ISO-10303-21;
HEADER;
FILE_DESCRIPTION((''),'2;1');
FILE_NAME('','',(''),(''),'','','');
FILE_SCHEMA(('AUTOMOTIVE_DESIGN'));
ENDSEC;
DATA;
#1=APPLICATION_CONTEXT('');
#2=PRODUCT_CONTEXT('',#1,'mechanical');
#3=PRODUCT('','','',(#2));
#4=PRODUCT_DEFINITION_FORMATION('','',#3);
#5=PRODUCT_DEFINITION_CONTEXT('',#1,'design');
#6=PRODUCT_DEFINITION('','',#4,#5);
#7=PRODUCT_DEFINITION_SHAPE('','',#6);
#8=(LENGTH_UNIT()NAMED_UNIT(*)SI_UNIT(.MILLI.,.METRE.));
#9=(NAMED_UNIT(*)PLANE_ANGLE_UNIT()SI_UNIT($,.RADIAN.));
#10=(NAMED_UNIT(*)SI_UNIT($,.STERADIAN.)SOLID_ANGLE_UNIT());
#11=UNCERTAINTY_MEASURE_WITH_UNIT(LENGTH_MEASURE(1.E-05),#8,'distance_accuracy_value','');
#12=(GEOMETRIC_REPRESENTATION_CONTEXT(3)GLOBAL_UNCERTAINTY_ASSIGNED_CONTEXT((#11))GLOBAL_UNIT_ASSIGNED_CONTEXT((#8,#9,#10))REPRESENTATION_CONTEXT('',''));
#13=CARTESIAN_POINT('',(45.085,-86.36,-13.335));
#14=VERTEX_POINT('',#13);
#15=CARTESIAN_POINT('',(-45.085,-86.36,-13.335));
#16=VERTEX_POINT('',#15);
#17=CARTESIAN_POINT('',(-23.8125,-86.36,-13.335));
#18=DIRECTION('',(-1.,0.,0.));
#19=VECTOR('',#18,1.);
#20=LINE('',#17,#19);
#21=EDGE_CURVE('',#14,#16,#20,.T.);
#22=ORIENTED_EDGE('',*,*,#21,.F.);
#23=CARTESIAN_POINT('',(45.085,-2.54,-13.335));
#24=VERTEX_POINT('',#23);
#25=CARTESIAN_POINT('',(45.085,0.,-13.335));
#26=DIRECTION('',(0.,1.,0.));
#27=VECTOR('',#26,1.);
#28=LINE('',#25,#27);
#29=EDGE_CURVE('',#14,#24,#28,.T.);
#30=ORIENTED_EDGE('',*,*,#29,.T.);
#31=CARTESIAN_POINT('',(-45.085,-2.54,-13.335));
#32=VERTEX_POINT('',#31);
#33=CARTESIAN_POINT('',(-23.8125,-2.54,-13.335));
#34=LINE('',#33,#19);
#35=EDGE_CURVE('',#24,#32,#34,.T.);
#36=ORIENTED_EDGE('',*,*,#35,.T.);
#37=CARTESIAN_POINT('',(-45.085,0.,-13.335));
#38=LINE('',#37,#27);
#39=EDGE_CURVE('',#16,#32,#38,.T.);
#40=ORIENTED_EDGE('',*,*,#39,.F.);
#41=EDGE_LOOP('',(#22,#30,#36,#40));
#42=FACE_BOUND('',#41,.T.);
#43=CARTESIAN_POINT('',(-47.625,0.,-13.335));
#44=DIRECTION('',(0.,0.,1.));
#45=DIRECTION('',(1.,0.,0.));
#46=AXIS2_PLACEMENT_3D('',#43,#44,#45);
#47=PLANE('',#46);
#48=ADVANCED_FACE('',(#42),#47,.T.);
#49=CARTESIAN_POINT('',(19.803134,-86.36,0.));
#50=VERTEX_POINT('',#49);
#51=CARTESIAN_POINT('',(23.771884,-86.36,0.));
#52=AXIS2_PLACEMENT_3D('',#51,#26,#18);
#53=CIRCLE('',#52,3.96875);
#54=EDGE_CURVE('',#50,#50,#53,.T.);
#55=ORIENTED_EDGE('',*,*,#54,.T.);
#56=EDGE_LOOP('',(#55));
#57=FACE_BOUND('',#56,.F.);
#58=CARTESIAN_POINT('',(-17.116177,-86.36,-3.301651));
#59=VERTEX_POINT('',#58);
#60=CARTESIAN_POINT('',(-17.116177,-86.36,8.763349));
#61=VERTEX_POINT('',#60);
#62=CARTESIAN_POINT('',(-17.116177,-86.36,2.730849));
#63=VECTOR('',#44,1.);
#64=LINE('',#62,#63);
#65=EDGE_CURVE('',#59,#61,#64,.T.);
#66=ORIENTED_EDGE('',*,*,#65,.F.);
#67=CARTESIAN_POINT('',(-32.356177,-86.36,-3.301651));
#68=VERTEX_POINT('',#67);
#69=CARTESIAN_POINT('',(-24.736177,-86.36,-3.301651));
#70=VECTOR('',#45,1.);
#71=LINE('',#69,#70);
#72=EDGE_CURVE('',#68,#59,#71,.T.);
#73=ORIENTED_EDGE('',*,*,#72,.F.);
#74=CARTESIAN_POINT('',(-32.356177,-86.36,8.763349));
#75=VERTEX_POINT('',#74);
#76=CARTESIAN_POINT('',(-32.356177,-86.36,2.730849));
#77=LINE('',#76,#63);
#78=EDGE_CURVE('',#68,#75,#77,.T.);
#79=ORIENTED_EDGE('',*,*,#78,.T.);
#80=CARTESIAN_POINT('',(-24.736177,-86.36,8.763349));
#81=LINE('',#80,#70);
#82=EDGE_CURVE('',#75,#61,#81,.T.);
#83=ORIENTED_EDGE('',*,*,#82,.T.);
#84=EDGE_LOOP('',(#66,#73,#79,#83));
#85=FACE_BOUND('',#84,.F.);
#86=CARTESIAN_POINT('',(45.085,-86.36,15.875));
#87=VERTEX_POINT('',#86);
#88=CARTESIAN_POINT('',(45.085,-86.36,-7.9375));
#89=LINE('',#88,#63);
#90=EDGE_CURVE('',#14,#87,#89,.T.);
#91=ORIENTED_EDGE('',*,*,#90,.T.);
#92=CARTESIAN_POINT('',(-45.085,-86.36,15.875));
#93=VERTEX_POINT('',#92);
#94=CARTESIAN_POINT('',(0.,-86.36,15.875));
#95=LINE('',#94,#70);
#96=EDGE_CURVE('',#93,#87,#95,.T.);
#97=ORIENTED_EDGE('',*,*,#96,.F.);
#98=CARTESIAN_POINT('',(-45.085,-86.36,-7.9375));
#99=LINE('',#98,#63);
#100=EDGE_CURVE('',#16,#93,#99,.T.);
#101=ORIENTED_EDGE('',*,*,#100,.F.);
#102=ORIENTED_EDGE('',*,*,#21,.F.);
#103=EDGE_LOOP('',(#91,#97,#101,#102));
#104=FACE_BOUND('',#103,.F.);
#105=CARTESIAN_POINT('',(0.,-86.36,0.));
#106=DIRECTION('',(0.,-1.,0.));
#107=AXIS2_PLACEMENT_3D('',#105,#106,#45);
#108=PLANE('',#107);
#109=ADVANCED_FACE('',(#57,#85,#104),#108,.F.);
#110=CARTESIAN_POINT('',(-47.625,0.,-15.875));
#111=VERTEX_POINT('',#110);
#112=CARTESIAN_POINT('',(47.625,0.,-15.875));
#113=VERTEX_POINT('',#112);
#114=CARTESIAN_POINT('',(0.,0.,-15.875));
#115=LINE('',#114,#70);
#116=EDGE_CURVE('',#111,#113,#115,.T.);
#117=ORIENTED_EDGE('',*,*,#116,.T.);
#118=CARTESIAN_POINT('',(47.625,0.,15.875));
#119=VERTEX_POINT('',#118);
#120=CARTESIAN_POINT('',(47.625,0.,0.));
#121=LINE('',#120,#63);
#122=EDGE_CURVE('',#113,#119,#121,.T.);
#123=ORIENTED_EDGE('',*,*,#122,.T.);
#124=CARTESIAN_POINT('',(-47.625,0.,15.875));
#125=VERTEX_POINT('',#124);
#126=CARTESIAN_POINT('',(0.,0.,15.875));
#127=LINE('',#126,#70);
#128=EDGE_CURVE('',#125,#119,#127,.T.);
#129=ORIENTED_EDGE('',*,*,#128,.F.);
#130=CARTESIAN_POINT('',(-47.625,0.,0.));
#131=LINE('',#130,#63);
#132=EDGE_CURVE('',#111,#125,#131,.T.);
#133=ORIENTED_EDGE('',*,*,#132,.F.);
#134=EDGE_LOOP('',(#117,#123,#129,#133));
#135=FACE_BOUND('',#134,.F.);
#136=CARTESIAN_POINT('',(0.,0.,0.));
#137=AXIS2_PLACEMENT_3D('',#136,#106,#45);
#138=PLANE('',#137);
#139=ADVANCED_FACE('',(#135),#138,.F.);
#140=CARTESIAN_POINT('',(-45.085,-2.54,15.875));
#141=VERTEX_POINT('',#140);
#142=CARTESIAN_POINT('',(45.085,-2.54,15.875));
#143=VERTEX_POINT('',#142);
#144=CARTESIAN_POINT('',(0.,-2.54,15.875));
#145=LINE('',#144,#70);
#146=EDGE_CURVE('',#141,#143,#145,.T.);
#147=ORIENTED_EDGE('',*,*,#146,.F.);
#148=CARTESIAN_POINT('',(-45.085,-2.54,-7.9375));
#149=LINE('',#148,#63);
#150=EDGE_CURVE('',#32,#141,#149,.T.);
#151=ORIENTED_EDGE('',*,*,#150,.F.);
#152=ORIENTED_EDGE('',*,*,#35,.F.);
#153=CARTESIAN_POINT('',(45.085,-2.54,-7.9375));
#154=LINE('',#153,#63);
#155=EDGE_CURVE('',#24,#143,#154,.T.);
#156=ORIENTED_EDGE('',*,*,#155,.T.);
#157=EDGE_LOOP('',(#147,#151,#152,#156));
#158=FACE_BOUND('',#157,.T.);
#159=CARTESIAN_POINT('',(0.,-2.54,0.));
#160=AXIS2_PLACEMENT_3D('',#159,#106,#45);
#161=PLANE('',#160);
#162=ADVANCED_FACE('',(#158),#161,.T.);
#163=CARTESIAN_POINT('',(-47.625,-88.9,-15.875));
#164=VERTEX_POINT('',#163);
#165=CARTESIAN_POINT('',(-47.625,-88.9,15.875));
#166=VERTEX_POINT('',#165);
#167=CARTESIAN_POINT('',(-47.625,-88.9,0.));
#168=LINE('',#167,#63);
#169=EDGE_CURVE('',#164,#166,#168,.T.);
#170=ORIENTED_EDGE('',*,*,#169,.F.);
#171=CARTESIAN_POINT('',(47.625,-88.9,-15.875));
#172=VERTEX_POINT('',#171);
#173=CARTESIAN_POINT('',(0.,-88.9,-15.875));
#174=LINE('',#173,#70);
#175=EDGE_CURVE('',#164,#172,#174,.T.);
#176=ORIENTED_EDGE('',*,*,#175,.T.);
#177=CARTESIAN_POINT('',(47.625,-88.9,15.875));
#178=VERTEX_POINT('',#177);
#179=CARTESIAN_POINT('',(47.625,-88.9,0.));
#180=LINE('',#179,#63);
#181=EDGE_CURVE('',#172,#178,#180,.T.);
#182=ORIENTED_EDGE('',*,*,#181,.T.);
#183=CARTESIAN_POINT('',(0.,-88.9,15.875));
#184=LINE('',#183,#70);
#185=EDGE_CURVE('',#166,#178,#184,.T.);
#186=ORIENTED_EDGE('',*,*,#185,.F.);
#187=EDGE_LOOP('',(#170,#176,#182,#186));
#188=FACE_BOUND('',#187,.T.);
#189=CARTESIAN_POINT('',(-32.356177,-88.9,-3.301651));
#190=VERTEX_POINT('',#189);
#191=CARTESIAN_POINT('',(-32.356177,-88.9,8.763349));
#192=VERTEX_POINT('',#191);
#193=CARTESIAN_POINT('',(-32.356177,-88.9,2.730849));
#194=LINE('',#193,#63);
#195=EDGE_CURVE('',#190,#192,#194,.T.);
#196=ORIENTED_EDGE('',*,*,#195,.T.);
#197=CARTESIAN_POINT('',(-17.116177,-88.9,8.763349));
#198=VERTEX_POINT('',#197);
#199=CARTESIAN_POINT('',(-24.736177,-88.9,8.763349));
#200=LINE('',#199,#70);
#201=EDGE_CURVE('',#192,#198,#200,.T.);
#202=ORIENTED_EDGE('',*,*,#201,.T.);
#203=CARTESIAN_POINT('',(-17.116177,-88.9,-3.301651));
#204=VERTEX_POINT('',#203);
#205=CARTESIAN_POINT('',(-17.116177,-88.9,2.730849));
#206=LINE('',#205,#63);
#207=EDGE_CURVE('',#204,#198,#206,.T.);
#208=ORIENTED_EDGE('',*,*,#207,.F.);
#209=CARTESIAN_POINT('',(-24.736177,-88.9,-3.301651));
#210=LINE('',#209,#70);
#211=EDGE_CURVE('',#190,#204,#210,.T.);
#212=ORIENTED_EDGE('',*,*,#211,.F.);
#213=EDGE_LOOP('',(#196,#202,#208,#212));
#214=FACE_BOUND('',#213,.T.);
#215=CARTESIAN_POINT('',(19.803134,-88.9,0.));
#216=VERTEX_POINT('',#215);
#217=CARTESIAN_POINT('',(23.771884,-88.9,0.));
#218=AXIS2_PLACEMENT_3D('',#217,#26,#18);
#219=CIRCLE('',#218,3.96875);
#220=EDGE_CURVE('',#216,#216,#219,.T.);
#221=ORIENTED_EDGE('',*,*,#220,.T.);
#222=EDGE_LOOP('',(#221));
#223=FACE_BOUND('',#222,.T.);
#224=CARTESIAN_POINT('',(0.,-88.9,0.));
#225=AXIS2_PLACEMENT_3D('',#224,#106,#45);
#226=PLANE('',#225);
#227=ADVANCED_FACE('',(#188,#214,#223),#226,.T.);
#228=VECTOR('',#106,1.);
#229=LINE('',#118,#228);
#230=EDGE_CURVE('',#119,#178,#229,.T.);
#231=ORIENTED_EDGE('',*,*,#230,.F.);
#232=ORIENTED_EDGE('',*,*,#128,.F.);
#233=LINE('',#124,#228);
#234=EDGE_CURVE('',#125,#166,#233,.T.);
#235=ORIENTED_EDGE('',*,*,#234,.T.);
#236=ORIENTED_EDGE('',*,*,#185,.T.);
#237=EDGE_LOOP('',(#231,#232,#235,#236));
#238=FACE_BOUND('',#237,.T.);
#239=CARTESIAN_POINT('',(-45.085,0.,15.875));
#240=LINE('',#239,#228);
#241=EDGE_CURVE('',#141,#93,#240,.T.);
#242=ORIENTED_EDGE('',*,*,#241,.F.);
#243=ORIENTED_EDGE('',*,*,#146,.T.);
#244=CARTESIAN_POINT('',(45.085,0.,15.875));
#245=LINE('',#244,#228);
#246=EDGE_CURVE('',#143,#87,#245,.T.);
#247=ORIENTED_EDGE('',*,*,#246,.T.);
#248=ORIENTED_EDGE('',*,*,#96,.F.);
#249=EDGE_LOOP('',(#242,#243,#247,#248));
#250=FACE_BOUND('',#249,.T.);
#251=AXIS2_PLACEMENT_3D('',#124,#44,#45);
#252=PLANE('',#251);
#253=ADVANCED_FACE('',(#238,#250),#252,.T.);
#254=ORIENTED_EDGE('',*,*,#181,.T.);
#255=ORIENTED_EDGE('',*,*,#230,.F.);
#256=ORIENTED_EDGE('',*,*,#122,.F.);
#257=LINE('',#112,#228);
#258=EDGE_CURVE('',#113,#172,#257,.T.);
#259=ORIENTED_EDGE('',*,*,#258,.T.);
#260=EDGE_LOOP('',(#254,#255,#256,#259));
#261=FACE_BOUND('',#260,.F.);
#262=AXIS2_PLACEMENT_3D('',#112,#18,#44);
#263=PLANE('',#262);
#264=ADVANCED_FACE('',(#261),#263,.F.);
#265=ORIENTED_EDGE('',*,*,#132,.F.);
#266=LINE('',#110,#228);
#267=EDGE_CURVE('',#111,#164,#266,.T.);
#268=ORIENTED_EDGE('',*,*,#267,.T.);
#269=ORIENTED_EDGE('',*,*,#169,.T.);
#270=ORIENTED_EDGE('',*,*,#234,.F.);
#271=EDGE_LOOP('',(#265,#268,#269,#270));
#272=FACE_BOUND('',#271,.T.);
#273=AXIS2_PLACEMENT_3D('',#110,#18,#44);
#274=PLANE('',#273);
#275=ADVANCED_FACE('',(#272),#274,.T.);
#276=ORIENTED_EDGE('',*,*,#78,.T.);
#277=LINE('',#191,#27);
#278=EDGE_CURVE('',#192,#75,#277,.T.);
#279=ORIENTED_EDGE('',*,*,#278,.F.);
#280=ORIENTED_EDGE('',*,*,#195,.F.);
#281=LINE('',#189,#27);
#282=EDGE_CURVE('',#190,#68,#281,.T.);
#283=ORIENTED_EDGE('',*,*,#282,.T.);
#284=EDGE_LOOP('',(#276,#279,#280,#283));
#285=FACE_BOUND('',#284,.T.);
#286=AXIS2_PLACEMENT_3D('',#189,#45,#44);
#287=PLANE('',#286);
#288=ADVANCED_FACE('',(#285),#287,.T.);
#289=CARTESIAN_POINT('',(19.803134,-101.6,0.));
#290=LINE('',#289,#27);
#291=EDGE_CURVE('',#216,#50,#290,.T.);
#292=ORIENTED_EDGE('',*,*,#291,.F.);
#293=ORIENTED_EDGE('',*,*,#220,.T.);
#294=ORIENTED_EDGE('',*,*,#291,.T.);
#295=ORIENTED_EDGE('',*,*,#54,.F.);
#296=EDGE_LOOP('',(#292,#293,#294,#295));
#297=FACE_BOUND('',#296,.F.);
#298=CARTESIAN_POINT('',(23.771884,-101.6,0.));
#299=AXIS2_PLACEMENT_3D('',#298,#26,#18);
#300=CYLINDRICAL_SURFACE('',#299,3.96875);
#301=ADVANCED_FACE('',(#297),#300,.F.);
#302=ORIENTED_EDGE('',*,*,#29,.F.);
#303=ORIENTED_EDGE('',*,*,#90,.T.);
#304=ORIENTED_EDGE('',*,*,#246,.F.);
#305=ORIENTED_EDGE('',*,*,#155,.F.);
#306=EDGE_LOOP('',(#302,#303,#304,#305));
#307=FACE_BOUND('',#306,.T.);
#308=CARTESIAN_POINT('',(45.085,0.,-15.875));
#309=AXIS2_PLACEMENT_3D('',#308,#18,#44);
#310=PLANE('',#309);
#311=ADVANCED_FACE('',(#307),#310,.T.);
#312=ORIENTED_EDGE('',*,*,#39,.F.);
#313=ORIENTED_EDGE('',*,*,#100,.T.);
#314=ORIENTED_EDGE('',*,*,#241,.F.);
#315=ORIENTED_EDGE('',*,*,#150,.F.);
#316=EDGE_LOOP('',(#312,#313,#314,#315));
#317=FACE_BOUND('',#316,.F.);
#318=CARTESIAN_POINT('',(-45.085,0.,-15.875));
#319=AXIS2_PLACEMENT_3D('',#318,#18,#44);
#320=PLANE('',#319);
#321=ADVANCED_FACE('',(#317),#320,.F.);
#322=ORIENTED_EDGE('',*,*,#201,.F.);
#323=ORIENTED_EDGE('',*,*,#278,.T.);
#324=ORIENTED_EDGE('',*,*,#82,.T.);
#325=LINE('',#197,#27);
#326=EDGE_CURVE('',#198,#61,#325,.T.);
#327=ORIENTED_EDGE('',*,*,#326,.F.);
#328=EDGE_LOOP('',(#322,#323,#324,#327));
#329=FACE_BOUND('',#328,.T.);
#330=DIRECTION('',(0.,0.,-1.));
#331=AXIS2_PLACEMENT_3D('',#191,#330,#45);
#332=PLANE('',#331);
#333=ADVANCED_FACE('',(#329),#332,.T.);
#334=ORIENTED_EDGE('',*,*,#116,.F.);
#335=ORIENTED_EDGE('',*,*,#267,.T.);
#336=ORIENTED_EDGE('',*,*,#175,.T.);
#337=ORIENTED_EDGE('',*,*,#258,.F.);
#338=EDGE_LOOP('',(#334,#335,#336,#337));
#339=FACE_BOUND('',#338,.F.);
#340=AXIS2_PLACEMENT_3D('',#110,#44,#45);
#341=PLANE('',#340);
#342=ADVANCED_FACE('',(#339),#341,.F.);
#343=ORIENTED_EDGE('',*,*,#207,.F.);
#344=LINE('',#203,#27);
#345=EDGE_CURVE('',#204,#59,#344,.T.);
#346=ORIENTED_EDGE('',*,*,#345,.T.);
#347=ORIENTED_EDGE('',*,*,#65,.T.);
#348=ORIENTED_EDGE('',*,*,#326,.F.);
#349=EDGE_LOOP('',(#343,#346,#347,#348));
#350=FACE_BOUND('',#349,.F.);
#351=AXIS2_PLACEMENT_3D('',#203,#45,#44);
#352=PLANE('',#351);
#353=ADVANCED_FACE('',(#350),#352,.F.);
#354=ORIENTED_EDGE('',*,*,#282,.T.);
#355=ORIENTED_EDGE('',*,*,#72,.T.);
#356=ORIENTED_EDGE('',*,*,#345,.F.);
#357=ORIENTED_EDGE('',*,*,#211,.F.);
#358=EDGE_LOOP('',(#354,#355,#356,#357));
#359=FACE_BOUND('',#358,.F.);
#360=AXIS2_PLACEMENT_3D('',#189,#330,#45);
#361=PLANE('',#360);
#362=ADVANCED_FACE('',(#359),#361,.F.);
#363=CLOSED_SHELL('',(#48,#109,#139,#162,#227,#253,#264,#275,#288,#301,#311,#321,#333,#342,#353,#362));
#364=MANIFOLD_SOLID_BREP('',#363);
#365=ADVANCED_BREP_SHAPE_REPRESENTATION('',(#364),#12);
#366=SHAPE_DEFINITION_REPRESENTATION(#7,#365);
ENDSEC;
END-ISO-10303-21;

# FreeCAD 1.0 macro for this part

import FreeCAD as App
import Part
import Sketcher
Q = App.Units.Quantity


def faces_at(feature, points):
    """Names of the faces that lie closest to the given points."""
    faces = feature.Shape.Faces
    near = lambda p: min(range(len(faces)), key=lambda i: faces[i].distToShape(Part.Vertex(*p))[0])
    return sorted({f"Face{near(p) + 1}" for p in points})


def add_polygon(sketch, points):
    """Adds a closed chain of lines whose ends are joined by coincident constraints."""
    first, n = sketch.GeometryCount, len(points)
    for a, b in zip(points, points[1:] + points[:1]):
        sketch.addGeometry(Part.LineSegment(App.Vector(*a, 0), App.Vector(*b, 0)), False)
    for i in range(n):
        sketch.addConstraint(Sketcher.Constraint("Coincident", first + i, 2, first + (i + 1) % n, 1))

doc = App.newDocument("Part")
body = doc.addObject("PartDesign::Body", "Body")

sketch1 = body.newObject("Sketcher::SketchObject", "Sketch")
sketch1.AttachmentSupport = (doc.getObject("XZ_Plane"), [""])
sketch1.MapMode = "FlatFace"
add_polygon(sketch1, [(-48, 16), (-48, -16), (48, -16), (48, 16)])
sketch1.addConstraint([
    Sketcher.Constraint("Vertical", 0),
    Sketcher.Constraint("Horizontal", 1),
    Sketcher.Constraint("Vertical", 2),
    Sketcher.Constraint("Horizontal", 3),
    Sketcher.Constraint("Symmetric", 0, 2, 2, 2, -1, 1),
    Sketcher.Constraint("DistanceX", 1, 1, 1, 2, Q("3.75 in")),
    Sketcher.Constraint("DistanceY", 0, 2, 0, 1, Q("1.25 in")),
])
pad1 = body.newObject("PartDesign::Pad", "Pad")
pad1.Profile = sketch1
pad1.Length = Q("3.5 in")
doc.recompute()

thickness = body.newObject("PartDesign::Thickness", "Thickness")
thickness.Base = (pad1, faces_at(pad1, [(0, -44.45, 15.875)]))
thickness.Value = Q("0.1 in")
thickness.Reversed = True
thickness.Join = "Arc"

sketch2 = body.newObject("Sketcher::SketchObject", "Sketch001")
sketch2.AttachmentSupport = (doc.getObject("XZ_Plane"), [""])
sketch2.MapMode = "FlatFace"
sketch2.AttachmentOffset = App.Placement(App.Vector(0, 0, 3.5 * 25.4), App.Rotation())
sketch2.addGeometry(Part.Circle(App.Vector(23.8, 0, 0), App.Vector(0, 0, 1), 4), False)
sketch2.addConstraint([
    Sketcher.Constraint("PointOnObject", 0, 3, -1),
    Sketcher.Constraint("Diameter", 0, Q("0.3125 in")),
    Sketcher.Constraint("DistanceX", -1, 1, 0, 3, Q("23.771884 mm")),
])
doc.recompute()
hole = body.newObject("PartDesign::Hole", "Hole")
hole.Profile = sketch2
hole.ThreadType = "None"
hole.Diameter = Q("0.3125 in")
hole.DepthType = "Dimension"
hole.Depth = Q("0.5 in")
hole.DrillPoint = "Flat"

sketch3 = body.newObject("Sketcher::SketchObject", "Sketch002")
sketch3.AttachmentSupport = (doc.getObject("XZ_Plane"), [""])
sketch3.MapMode = "FlatFace"
sketch3.AttachmentOffset = App.Placement(App.Vector(0, 0, 3.5 * 25.4), App.Rotation())
add_polygon(sketch3, [(-32, 9), (-32, -3), (-17, -3), (-17, 9)])
sketch3.addConstraint([
    Sketcher.Constraint("Vertical", 0),
    Sketcher.Constraint("Horizontal", 1),
    Sketcher.Constraint("Vertical", 2),
    Sketcher.Constraint("Horizontal", 3),
    Sketcher.Constraint("DistanceX", 1, 1, 1, 2, Q("0.6 in")),
    Sketcher.Constraint("DistanceY", 0, 2, 0, 1, Q("0.475 in")),
    Sketcher.Constraint("DistanceY", 0, 2, -1, 1, Q("3.301651 mm")),
    Sketcher.Constraint("DistanceX", 0, 2, -1, 1, Q("32.356177 mm")),
])
pocket1 = body.newObject("PartDesign::Pocket", "Pocket")
pocket1.Profile = sketch3
pocket1.Length = Q("0.1 in")

doc.recompute()
